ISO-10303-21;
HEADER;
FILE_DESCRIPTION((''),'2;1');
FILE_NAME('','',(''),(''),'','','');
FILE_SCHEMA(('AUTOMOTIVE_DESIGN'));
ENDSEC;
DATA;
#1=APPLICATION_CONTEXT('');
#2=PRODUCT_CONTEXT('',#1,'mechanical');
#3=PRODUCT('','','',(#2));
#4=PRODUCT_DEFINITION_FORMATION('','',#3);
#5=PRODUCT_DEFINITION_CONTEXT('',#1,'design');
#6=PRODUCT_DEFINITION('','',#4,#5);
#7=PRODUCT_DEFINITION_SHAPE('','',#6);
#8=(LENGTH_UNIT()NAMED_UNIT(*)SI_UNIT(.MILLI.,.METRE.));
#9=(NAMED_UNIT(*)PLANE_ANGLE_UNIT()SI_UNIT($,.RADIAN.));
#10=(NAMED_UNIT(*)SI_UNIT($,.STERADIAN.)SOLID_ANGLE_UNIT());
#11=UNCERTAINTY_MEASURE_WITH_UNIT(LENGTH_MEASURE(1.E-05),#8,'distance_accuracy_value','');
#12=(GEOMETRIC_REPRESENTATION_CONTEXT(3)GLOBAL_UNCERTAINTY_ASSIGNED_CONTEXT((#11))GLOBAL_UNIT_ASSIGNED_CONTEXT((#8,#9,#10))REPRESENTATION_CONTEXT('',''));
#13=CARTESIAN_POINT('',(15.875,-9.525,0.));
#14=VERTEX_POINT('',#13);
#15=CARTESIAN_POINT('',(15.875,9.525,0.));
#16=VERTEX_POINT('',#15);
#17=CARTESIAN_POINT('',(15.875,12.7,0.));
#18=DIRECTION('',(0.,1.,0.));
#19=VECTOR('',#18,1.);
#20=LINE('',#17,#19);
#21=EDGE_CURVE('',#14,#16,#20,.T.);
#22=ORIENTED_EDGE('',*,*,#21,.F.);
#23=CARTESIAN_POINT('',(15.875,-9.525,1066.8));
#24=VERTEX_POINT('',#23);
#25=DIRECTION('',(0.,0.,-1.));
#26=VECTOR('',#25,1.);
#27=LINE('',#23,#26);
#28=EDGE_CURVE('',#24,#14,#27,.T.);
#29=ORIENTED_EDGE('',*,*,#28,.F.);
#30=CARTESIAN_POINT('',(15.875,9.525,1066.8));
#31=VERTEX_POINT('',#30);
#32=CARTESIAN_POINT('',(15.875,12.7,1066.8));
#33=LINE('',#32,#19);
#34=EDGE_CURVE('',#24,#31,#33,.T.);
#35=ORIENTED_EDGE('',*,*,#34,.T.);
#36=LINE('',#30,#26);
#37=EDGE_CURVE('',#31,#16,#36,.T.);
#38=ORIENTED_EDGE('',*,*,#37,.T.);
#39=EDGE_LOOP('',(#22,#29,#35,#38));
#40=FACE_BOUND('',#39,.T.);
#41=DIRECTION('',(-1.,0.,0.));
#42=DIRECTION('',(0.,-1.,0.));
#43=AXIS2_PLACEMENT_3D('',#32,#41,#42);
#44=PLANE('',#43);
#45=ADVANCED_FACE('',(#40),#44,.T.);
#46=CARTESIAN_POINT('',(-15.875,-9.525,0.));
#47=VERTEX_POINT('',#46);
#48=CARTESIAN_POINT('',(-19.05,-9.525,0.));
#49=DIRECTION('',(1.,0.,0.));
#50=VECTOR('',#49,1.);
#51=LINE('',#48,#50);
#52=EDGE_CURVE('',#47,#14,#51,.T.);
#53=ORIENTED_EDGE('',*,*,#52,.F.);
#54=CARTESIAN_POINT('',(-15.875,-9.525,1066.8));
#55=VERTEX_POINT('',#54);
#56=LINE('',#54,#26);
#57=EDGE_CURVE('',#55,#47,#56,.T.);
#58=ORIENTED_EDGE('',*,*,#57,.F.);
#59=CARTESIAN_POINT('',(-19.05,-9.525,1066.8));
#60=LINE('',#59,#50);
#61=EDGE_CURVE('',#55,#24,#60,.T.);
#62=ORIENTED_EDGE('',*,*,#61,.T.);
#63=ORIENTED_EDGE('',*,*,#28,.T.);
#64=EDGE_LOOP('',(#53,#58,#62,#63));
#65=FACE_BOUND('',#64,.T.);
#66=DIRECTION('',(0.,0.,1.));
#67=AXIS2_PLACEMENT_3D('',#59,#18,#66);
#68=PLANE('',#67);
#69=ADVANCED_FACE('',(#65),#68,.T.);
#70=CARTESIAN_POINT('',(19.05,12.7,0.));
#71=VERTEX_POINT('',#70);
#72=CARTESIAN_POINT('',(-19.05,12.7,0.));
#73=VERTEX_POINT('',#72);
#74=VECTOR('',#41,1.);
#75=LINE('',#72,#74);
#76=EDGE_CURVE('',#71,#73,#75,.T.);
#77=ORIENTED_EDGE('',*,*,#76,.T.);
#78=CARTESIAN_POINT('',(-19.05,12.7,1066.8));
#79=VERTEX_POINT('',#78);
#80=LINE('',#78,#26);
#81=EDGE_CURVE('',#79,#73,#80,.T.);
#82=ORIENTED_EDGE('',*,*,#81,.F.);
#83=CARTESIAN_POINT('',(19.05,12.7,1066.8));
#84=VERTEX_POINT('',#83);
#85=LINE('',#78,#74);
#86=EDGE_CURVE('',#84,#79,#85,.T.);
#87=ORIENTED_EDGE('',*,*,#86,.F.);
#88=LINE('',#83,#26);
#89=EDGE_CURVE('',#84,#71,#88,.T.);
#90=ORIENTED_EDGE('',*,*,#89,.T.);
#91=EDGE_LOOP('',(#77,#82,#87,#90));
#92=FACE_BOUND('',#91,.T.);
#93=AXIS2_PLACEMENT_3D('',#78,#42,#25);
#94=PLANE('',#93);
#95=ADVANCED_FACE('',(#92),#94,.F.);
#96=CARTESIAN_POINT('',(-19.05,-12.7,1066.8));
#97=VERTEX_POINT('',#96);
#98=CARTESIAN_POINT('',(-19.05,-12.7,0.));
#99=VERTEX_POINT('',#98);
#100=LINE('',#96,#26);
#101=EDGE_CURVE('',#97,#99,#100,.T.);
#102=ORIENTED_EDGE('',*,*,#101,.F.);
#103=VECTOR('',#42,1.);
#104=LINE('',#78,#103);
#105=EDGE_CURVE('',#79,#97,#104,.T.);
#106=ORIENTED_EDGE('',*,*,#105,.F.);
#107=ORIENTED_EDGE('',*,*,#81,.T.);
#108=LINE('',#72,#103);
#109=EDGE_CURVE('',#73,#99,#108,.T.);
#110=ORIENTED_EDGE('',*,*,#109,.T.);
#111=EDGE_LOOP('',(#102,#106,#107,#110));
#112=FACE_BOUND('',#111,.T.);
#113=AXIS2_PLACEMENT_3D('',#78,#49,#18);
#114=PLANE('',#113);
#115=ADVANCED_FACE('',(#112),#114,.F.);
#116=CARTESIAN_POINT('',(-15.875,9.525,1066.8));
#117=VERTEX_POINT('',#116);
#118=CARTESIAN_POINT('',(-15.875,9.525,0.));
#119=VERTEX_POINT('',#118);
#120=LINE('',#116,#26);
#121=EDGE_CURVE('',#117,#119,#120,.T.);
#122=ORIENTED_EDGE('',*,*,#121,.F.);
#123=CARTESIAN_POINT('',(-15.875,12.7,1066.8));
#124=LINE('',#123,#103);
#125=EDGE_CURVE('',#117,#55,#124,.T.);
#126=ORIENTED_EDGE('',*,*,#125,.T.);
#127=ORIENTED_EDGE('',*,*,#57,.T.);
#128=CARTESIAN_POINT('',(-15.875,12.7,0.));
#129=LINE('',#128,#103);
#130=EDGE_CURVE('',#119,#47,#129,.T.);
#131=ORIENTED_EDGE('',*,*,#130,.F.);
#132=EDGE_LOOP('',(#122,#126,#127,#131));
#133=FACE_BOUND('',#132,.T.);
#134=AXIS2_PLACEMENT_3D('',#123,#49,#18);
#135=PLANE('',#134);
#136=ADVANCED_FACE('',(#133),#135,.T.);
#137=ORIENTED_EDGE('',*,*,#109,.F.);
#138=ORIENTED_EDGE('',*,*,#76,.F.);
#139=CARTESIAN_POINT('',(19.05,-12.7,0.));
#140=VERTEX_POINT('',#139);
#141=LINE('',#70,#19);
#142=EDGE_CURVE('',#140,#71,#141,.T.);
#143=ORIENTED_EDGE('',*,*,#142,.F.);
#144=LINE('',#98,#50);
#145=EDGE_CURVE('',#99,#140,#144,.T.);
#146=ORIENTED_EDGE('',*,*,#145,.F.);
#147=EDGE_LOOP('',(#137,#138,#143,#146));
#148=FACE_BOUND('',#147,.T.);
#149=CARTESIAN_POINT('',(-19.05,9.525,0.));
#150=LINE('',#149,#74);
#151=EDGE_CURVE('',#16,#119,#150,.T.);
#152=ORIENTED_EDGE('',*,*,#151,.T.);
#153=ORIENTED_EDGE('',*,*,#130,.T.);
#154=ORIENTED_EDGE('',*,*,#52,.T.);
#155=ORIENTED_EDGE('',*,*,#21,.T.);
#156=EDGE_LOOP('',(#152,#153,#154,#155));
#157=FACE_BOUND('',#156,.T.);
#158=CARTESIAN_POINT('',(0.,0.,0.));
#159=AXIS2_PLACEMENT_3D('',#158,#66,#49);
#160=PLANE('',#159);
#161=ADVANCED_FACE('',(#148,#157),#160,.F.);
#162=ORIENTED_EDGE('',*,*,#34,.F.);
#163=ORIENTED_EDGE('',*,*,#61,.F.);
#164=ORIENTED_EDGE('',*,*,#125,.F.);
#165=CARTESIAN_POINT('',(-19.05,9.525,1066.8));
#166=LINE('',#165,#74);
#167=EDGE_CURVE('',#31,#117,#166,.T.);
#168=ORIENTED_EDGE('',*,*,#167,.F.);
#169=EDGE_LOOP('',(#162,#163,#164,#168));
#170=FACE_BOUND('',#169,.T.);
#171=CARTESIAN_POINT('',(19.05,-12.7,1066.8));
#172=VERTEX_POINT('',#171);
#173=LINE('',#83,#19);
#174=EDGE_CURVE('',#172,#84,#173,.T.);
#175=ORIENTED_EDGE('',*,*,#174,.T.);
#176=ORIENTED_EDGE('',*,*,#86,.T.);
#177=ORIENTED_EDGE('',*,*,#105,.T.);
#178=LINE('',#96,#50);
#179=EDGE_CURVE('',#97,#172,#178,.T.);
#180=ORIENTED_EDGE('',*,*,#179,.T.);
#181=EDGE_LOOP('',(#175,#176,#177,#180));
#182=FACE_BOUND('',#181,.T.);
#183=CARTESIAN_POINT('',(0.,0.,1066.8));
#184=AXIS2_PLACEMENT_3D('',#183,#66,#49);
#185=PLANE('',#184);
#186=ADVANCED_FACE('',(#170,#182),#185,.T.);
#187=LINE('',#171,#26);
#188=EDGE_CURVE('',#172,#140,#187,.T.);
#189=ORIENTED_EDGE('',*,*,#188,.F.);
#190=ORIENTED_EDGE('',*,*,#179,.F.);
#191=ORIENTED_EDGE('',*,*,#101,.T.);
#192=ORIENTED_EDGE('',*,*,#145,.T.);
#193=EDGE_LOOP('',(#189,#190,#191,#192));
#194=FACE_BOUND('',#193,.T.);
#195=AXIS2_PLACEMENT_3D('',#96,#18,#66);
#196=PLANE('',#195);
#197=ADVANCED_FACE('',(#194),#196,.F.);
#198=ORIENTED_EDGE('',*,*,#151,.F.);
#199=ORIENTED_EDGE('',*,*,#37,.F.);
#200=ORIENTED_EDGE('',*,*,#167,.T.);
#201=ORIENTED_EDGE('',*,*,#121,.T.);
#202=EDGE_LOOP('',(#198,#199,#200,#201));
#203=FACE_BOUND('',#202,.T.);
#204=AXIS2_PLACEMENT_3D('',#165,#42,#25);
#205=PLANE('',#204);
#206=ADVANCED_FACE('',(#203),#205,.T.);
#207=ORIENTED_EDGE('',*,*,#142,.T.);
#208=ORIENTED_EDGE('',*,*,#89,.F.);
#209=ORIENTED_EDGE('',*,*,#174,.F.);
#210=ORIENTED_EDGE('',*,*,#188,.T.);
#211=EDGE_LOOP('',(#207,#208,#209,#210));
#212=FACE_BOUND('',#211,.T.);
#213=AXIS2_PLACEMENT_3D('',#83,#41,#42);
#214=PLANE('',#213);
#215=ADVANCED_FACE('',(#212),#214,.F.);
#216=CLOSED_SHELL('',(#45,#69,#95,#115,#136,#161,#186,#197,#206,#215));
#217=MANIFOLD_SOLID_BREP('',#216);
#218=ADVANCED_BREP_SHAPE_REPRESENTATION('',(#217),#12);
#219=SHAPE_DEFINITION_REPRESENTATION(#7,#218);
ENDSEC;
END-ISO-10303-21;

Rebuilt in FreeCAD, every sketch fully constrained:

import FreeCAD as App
import Part
import Sketcher

V = App.Vector
Q = App.Units.Quantity


def faces_at(feature, points):
    """Names of the faces that lie closest to the given points."""
    faces = feature.Shape.Faces
    near = lambda p: min(range(len(faces)), key=lambda i: faces[i].distToShape(Part.Vertex(*p))[0])
    return sorted({f"Face{near(p) + 1}" for p in points})


def add_polygon(sketch, points):
    """Adds a closed chain of lines whose ends are joined by coincident constraints."""
    first, n = sketch.GeometryCount, len(points)
    for a, b in zip(points, points[1:] + points[:1]):
        sketch.addGeometry(Part.LineSegment(App.Vector(*a, 0), App.Vector(*b, 0)), False)
    for i in range(n):
        sketch.addConstraint(Sketcher.Constraint("Coincident", first + i, 2, first + (i + 1) % n, 1))

doc = App.newDocument("Part")
body = doc.addObject("PartDesign::Body", "Body")

# Sketch on XY plane
sketch1 = doc.addObject("Sketcher::SketchObject", "Sketch")
body.addObject(sketch1)
sketch1.AttachmentSupport = (doc.XY_Plane, [""])
sketch1.MapMode = "FlatFace"
add_polygon(sketch1, [(-19, 13), (-19, -13), (19, -13), (19, 13)])  # lines 0-3
sketch1.addConstraint(Sketcher.Constraint("Vertical", 0))
sketch1.addConstraint(Sketcher.Constraint("Horizontal", 1))
sketch1.addConstraint(Sketcher.Constraint("Vertical", 2))
sketch1.addConstraint(Sketcher.Constraint("Horizontal", 3))
sketch1.addConstraint(Sketcher.Constraint("Symmetric", 0, 2, 2, 2, -1, 1))
sketch1.addConstraint(Sketcher.Constraint("DistanceY", 0, 2, 0, 1, Q("1 in")))
sketch1.addConstraint(Sketcher.Constraint("DistanceX", 1, 1, 1, 2, Q("1.5 in")))
pad1 = doc.addObject("PartDesign::Pad", "Pad")
body.addObject(pad1)
pad1.Profile = sketch1
pad1.Length = Q("42 in")
doc.recompute()

thickness = doc.addObject("PartDesign::Thickness", "Thickness")
body.addObject(thickness)
thickness.Base = (pad1, faces_at(pad1, [(0, 0, 1066.8), (0, 0, 0)]))
thickness.Value = Q("0.125 in")
thickness.Reversed = True
thickness.Join = "Intersection"

doc.recompute()
